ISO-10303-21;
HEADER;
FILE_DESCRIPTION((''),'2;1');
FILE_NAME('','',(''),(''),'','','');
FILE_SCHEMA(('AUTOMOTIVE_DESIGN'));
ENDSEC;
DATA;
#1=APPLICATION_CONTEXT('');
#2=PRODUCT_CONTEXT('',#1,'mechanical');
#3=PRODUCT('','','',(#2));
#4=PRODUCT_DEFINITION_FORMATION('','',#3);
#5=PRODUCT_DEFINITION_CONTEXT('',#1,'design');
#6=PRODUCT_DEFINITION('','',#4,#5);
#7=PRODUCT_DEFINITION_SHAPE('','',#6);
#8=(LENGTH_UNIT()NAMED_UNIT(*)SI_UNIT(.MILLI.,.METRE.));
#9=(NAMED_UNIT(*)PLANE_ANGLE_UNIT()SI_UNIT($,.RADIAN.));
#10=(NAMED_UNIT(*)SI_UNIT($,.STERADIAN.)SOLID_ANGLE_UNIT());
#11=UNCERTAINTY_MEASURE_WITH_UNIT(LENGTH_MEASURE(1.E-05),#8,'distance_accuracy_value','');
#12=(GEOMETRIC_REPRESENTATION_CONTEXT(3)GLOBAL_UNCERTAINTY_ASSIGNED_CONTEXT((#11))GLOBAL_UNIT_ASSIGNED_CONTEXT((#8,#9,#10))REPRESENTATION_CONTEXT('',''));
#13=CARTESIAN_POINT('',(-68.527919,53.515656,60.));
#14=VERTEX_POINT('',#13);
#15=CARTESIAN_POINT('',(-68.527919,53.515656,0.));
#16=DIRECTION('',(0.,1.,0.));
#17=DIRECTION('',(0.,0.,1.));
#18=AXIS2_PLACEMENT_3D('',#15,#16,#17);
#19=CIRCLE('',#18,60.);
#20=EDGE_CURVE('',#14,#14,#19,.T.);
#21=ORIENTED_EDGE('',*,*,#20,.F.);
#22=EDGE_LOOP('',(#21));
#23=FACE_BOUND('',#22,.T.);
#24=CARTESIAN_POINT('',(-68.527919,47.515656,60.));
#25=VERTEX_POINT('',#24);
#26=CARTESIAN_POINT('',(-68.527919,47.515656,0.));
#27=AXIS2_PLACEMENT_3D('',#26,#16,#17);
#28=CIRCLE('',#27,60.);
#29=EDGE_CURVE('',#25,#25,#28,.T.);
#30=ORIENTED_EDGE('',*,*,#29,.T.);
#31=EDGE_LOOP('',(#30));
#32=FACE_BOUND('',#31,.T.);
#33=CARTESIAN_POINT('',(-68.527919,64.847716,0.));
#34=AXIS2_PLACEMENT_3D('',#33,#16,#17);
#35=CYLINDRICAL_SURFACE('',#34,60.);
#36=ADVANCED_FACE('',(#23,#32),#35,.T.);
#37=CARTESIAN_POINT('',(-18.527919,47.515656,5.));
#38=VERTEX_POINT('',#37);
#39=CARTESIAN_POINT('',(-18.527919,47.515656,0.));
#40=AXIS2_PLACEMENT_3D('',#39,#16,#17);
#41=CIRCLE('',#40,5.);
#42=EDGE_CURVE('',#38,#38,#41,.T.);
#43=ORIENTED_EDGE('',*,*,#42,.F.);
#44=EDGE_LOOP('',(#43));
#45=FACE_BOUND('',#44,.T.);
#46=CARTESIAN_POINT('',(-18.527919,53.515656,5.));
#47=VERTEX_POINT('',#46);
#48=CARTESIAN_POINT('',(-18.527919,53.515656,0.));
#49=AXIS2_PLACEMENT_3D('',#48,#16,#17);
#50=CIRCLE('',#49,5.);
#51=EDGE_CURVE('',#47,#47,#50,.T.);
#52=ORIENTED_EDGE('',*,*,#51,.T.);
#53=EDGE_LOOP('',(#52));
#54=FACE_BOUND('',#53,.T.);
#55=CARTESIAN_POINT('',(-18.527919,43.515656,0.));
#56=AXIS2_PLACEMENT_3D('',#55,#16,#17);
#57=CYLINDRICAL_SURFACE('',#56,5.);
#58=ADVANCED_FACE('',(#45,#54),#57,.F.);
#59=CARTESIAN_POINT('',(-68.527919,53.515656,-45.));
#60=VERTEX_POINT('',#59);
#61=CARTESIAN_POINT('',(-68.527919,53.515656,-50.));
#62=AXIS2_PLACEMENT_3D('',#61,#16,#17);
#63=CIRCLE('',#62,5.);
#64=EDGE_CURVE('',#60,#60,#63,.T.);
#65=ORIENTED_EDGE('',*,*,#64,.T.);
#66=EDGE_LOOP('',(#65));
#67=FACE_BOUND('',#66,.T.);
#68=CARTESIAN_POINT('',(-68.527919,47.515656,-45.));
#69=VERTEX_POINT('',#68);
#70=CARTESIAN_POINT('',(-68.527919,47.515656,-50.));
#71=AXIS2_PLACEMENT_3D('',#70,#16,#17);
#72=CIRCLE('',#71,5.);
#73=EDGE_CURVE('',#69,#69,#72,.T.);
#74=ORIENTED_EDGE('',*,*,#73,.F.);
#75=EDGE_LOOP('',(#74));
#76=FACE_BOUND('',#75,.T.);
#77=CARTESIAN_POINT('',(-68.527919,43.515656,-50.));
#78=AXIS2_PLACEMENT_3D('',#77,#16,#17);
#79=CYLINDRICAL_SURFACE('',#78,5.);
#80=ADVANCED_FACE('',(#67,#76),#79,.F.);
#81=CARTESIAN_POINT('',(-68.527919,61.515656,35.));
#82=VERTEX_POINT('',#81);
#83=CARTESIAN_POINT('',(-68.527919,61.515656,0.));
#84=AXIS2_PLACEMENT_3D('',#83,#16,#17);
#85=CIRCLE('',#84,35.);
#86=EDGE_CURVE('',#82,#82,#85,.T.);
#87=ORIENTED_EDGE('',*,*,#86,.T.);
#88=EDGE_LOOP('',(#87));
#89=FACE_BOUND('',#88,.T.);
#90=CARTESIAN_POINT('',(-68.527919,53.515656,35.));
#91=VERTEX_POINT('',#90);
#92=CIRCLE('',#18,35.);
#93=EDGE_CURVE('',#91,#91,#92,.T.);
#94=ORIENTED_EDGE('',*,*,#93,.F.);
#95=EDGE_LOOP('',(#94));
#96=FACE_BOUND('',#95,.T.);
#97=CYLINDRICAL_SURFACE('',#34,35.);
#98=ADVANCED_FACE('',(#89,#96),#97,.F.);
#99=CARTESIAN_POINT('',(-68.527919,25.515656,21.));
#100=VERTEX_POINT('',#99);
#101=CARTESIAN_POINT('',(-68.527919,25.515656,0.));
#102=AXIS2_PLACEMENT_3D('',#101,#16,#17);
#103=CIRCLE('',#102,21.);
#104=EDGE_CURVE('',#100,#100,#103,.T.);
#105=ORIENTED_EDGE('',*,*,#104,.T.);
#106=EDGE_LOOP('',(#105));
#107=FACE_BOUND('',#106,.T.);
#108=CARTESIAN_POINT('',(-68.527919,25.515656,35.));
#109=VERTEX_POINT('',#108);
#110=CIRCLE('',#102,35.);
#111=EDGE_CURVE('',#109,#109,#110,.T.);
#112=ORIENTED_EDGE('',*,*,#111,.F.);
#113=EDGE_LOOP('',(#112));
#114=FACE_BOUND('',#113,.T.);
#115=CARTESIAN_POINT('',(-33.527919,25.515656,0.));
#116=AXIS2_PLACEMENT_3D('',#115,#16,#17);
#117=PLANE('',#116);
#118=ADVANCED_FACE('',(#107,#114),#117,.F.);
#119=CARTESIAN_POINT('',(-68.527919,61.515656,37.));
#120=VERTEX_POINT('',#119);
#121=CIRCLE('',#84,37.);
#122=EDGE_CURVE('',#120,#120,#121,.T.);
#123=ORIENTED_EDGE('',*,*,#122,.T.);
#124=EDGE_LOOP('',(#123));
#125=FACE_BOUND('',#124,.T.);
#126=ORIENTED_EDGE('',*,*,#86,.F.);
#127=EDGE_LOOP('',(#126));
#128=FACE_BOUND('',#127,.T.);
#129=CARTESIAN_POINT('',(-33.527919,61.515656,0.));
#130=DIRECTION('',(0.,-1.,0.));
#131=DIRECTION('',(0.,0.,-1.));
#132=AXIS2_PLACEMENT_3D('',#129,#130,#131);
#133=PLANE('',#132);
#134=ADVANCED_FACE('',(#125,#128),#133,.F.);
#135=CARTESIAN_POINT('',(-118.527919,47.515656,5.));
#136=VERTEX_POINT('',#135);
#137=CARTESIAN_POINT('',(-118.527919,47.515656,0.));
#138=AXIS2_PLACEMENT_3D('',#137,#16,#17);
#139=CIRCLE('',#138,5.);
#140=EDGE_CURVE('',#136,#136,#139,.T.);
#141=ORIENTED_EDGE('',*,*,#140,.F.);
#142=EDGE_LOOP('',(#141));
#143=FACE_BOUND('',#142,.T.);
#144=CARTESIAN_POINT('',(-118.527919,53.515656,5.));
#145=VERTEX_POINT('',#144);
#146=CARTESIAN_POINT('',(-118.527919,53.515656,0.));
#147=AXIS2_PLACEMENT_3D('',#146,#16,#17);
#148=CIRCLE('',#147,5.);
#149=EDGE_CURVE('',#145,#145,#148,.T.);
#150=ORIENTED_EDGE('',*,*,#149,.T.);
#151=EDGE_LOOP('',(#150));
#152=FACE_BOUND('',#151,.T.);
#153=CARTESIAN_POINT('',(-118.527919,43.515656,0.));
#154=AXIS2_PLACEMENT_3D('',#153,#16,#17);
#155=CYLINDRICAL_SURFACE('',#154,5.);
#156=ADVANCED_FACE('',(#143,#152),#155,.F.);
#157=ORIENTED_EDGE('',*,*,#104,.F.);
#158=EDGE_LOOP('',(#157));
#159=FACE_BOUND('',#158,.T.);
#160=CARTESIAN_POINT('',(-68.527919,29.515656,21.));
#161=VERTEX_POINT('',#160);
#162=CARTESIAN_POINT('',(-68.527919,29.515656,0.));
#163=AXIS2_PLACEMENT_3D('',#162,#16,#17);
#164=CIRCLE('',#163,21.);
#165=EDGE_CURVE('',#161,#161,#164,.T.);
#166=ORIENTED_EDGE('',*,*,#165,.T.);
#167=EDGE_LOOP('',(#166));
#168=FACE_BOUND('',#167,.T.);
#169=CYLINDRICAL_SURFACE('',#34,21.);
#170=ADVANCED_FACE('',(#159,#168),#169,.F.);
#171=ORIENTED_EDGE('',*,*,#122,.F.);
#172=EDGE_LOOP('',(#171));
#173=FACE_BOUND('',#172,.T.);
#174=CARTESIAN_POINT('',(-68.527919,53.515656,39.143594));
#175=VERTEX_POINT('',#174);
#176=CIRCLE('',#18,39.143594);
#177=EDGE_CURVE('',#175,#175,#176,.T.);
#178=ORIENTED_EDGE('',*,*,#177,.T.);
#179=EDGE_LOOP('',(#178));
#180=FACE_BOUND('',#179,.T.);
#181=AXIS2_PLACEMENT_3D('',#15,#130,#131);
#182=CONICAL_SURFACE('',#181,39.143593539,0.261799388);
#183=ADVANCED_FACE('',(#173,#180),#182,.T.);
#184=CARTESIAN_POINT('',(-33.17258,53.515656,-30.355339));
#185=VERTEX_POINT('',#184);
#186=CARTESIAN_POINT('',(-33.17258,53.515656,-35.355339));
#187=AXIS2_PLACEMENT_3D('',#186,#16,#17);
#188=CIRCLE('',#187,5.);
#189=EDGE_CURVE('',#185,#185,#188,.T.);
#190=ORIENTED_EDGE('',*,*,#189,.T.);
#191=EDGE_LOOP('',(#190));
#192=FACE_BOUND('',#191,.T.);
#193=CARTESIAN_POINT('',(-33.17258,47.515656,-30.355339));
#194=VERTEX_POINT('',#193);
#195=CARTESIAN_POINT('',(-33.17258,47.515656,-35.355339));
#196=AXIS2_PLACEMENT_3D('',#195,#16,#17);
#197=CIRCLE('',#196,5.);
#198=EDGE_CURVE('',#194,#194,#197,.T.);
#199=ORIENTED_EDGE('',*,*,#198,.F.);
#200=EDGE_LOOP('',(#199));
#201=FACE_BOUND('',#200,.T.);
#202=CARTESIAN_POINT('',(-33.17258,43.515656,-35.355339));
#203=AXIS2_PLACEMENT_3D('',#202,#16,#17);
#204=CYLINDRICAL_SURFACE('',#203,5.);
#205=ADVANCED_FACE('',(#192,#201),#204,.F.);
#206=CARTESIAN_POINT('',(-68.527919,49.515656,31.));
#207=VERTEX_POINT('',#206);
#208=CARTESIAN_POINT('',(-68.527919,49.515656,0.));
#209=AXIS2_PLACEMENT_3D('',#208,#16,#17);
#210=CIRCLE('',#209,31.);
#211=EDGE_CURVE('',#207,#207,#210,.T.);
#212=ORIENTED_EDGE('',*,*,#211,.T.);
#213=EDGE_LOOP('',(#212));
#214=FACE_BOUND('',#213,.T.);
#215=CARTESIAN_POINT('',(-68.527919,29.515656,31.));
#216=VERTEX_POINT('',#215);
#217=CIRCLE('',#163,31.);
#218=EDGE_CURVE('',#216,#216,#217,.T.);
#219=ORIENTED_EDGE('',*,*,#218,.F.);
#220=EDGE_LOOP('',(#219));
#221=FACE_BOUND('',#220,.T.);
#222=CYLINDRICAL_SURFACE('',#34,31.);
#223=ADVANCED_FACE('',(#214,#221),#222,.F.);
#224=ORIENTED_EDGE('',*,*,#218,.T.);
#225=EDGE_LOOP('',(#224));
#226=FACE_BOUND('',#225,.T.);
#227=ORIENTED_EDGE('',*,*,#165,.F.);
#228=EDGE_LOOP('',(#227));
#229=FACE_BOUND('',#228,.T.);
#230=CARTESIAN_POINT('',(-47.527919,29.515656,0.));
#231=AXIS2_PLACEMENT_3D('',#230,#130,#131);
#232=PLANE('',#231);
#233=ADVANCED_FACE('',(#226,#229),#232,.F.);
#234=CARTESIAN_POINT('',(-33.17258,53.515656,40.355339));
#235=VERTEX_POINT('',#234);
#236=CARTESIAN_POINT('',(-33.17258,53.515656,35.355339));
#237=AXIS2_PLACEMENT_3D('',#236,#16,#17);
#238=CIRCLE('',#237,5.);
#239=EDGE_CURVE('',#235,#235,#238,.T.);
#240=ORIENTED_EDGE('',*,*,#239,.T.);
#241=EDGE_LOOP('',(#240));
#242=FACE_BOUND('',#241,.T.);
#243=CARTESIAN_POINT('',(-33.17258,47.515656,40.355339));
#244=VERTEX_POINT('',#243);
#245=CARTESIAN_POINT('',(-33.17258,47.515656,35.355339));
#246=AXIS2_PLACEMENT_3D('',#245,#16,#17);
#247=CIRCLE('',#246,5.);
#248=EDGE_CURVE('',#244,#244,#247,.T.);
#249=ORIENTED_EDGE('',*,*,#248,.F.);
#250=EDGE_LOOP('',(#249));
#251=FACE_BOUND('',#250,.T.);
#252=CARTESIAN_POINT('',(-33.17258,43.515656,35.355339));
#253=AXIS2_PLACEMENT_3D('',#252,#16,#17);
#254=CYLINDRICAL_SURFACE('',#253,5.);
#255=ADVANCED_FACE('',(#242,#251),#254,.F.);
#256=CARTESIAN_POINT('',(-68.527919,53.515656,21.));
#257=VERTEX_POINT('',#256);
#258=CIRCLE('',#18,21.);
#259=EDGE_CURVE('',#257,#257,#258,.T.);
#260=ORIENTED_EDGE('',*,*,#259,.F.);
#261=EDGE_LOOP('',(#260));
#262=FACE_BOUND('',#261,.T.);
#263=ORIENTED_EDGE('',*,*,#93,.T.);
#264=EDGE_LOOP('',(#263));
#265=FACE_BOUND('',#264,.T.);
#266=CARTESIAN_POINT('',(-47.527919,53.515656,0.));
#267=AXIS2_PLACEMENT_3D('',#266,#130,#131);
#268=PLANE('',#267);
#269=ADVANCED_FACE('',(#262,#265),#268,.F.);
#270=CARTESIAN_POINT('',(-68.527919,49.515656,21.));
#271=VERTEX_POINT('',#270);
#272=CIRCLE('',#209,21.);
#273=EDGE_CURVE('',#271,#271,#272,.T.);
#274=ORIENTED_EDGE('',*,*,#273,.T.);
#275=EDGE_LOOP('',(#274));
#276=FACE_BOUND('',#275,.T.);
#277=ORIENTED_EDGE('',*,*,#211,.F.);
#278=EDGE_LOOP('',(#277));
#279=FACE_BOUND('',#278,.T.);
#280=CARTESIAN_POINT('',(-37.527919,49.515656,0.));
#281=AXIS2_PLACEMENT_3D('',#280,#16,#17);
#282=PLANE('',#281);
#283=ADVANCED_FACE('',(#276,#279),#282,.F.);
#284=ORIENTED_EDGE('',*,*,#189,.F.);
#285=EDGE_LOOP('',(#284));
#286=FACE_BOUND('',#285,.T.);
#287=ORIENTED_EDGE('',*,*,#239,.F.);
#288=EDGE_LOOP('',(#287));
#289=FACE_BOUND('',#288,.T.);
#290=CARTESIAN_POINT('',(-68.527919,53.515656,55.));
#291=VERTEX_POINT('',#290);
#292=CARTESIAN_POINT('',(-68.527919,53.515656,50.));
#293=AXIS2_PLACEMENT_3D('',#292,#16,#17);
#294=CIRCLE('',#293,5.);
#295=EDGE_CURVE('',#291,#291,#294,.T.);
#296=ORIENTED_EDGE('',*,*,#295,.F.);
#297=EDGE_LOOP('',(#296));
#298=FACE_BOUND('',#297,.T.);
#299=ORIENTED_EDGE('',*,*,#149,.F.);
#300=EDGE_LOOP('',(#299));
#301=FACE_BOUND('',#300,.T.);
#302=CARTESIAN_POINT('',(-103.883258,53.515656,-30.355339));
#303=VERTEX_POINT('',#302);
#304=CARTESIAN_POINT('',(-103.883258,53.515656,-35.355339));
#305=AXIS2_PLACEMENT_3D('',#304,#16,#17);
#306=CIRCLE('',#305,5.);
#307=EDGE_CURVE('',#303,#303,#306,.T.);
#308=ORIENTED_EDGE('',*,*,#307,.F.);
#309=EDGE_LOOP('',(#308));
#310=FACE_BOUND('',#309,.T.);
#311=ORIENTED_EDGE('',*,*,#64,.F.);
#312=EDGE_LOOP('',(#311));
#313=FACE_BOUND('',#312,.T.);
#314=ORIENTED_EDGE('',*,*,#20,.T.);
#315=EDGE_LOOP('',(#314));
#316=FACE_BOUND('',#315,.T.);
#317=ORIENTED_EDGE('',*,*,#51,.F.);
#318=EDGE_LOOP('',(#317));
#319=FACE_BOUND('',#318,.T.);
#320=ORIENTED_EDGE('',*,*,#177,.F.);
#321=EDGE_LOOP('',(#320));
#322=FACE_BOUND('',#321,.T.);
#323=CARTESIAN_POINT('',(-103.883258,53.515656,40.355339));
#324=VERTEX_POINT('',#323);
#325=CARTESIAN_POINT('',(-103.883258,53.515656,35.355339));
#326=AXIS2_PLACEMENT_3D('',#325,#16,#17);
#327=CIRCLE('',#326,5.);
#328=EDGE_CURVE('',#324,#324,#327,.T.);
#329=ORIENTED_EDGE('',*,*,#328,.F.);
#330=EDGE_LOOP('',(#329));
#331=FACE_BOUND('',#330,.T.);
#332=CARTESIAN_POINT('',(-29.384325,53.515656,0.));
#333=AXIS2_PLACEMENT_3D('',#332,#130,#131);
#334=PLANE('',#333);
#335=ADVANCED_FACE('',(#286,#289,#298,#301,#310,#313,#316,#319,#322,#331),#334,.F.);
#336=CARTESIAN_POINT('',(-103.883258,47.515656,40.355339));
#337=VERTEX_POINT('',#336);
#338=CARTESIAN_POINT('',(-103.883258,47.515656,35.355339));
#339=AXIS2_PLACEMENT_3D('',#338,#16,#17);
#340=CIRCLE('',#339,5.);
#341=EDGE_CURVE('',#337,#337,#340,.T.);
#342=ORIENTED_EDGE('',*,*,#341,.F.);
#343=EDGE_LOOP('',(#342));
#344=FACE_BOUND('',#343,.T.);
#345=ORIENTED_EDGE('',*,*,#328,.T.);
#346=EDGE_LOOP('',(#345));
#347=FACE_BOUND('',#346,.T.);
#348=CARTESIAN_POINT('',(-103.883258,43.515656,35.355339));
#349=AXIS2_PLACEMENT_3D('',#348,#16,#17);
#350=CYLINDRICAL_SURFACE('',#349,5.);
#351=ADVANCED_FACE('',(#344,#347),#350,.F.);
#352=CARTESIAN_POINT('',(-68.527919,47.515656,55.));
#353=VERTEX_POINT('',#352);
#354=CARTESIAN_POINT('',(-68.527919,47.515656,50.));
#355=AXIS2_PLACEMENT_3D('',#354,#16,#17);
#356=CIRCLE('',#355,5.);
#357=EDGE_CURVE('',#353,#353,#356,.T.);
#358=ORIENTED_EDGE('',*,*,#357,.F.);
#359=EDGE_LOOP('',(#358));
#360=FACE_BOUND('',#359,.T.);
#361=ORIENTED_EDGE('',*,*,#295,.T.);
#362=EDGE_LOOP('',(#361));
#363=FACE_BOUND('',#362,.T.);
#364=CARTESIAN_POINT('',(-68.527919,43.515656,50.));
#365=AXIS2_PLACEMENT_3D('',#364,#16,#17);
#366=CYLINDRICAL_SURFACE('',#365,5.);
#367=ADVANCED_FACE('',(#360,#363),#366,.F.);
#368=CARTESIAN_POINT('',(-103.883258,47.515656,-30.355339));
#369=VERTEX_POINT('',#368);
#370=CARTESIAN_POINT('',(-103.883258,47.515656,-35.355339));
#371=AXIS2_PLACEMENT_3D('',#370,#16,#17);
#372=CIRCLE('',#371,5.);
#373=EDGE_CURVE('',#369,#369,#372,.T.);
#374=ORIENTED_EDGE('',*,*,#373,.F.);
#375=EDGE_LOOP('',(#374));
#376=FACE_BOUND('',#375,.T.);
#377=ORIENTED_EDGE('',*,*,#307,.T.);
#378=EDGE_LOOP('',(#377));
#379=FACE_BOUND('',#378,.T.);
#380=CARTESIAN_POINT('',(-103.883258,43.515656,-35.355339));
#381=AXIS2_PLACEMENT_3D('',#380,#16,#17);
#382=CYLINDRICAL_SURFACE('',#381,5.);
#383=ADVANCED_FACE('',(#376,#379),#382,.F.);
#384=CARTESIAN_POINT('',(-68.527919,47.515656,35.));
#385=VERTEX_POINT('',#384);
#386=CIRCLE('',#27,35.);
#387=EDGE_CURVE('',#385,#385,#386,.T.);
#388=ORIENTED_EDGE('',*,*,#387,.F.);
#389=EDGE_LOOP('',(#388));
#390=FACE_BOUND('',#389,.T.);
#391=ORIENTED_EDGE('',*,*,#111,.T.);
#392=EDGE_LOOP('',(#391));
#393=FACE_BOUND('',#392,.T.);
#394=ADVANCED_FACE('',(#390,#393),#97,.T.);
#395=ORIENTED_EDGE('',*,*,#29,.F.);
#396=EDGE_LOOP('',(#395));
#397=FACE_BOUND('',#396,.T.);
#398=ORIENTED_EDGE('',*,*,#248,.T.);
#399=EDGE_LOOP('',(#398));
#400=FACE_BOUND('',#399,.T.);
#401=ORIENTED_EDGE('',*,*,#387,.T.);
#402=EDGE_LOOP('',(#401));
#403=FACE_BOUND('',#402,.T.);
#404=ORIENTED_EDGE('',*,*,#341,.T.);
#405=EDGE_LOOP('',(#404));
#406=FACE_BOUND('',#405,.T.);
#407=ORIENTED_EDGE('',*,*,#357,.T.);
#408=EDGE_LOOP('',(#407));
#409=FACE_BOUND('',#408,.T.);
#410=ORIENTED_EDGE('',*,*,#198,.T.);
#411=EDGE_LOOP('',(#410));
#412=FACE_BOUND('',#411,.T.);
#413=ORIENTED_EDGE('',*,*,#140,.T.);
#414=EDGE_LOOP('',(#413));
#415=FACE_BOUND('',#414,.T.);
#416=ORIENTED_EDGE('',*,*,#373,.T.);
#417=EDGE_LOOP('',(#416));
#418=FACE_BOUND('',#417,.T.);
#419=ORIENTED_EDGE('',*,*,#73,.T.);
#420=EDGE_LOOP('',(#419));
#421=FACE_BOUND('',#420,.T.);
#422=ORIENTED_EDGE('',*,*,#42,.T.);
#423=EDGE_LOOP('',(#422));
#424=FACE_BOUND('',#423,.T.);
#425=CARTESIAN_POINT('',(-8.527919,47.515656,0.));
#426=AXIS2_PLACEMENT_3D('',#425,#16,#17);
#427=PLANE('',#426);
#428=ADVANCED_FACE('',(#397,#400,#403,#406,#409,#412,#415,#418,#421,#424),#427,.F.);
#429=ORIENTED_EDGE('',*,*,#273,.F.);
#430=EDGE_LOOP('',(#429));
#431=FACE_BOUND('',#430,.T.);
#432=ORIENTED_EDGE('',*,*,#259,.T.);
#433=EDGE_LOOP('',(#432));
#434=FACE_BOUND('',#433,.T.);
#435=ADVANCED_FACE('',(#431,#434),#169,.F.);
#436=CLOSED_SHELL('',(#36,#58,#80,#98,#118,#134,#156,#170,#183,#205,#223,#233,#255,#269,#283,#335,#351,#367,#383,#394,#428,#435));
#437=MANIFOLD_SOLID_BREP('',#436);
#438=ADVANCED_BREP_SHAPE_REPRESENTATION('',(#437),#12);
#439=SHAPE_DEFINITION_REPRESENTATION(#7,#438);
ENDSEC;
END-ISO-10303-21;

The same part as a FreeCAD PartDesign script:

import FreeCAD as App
import Part
import Sketcher
Q = App.Units.Quantity

doc = App.newDocument("Part")
body = doc.addObject("PartDesign::Body", "Body")

# Sketch on XY plane
sketch1 = body.newObject("Sketcher::SketchObject", "Sketch")
sketch1.AttachmentSupport = (doc.getObject("XY_Plane"), [""])
sketch1.MapMode = "FlatFace"
sketch1.addGeometry([
    Part.LineSegment(App.Vector(-37.5, 29.5, 0), App.Vector(-47.5, 29.5, 0)),  # 0
    Part.LineSegment(App.Vector(-47.5, 29.5, 0), App.Vector(-47.5, 25.5, 0)),  # 1
    Part.LineSegment(App.Vector(-47.5, 25.5, 0), App.Vector(-33.5, 25.5, 0)),  # 2
    Part.LineSegment(App.Vector(-33.5, 25.5, 0), App.Vector(-33.5, 47.5, 0)),  # 3
    Part.LineSegment(App.Vector(-33.5, 47.5, 0), App.Vector(-8.5, 47.5, 0)),  # 4
    Part.LineSegment(App.Vector(-8.5, 47.5, 0), App.Vector(-8.5, 53.5, 0)),  # 5
    Part.LineSegment(App.Vector(-8.5, 53.5, 0), App.Vector(-29.4, 53.5, 0)),  # 6
    Part.LineSegment(App.Vector(-29.4, 53.5, 0), App.Vector(-31.5, 61.5, 0)),  # 7
    Part.LineSegment(App.Vector(-31.5, 61.5, 0), App.Vector(-33.5, 61.5, 0)),  # 8
    Part.LineSegment(App.Vector(-33.5, 61.5, 0), App.Vector(-33.5, 53.5, 0)),  # 9
    Part.LineSegment(App.Vector(-33.5, 53.5, 0), App.Vector(-47.5, 53.5, 0)),  # 10
    Part.LineSegment(App.Vector(-47.5, 53.5, 0), App.Vector(-47.5, 49.5, 0)),  # 11
    Part.LineSegment(App.Vector(-47.5, 49.5, 0), App.Vector(-37.5, 49.5, 0)),  # 12
    Part.LineSegment(App.Vector(-37.5, 49.5, 0), App.Vector(-37.5, 29.5, 0)),  # 13
], False)
sketch1.addGeometry(Part.LineSegment(App.Vector(-68.5, 61.5, 0), App.Vector(-68.5, 25.5, 0)), True)  # axis
sketch1.addConstraint([
    Sketcher.Constraint("Coincident", 0, 2, 1, 1),
    Sketcher.Constraint("Coincident", 1, 2, 2, 1),
    Sketcher.Constraint("Coincident", 2, 2, 3, 1),
    Sketcher.Constraint("Coincident", 3, 2, 4, 1),
    Sketcher.Constraint("Coincident", 4, 2, 5, 1),
    Sketcher.Constraint("Coincident", 5, 2, 6, 1),
    Sketcher.Constraint("Coincident", 6, 2, 7, 1),
    Sketcher.Constraint("Coincident", 7, 2, 8, 1),
    Sketcher.Constraint("Coincident", 8, 2, 9, 1),
    Sketcher.Constraint("Coincident", 9, 2, 10, 1),
    Sketcher.Constraint("Coincident", 10, 2, 11, 1),
    Sketcher.Constraint("Coincident", 11, 2, 12, 1),
    Sketcher.Constraint("Coincident", 12, 2, 13, 1),
    Sketcher.Constraint("Coincident", 13, 2, 0, 1),
    Sketcher.Constraint("Horizontal", 0),
    Sketcher.Constraint("Vertical", 1),
    Sketcher.Constraint("Horizontal", 2),
    Sketcher.Constraint("Vertical", 3),
    Sketcher.Constraint("Horizontal", 4),
    Sketcher.Constraint("Vertical", 5),
    Sketcher.Constraint("Horizontal", 6),
    Sketcher.Constraint("Horizontal", 8),
    Sketcher.Constraint("Vertical", 9),
    Sketcher.Constraint("Horizontal", 10),
    Sketcher.Constraint("Vertical", 11),
    Sketcher.Constraint("Horizontal", 12),
    Sketcher.Constraint("Vertical", 13),
    Sketcher.Constraint("Vertical", 14),
    Sketcher.Constraint("Horizontal", 6, 2, 9, 2),
    Sketcher.Constraint("Horizontal", 8, 2, 14, 1),
    Sketcher.Constraint("Horizontal", 2, 2, 14, 2),
    Sketcher.Constraint("Vertical", 3, 2, 8, 2),
    Sketcher.Constraint("Vertical", 1, 2, 10, 2),
    Sketcher.Constraint("Equal", 1, 11),
    Sketcher.Constraint("DistanceX", 0, 2, 0, 1, 10.0),
    Sketcher.Constraint("DistanceX", 2, 1, 2, 2, 14.0),
    Sketcher.Constraint("DistanceX", 4, 1, 4, 2, 25.0),
    Sketcher.Constraint("DistanceX", 8, 2, 8, 1, 2.0),
    Sketcher.Constraint("DistanceY", 1, 2, 1, 1, 4.0),
    Sketcher.Constraint("DistanceY", 3, 1, 3, 2, 22.0),
    Sketcher.Constraint("DistanceY", 5, 1, 5, 2, 6.0),
    Sketcher.Constraint("DistanceY", 9, 2, 9, 1, 8.0),
    Sketcher.Constraint("Angle", 7, Q("105 deg")),
    Sketcher.Constraint("DistanceX", 14, 1, 10, 2, 21.0),
    Sketcher.Constraint("DistanceX", 0, 2, -1, 1, 47.527919),
    Sketcher.Constraint("DistanceY", -1, 1, 0, 2, 29.515656),
])
revolution = body.newObject("PartDesign::Revolution", "Revolution")
revolution.Profile = sketch1
revolution.ReferenceAxis = (sketch1, ["Axis0"])
revolution.Angle = 360

# Sketch on XZ plane
sketch2 = body.newObject("Sketcher::SketchObject", "Sketch001")
sketch2.AttachmentSupport = (doc.getObject("XZ_Plane"), [""])
sketch2.MapMode = "FlatFace"
sketch2.AttachmentOffset = App.Placement(App.Vector(0, 0, -53.515656), App.Rotation())
sketch2.addGeometry([
    Part.Circle(App.Vector(-119, 0, 0), App.Vector(0, 0, 1), 5),  # 0
    Part.Circle(App.Vector(-104, -35, 0), App.Vector(0, 0, 1), 5),  # 1
    Part.Circle(App.Vector(-69, -50, 0), App.Vector(0, 0, 1), 5),  # 2
    Part.Circle(App.Vector(-33, -35, 0), App.Vector(0, 0, 1), 5),  # 3
    Part.Circle(App.Vector(-19, 0, 0), App.Vector(0, 0, 1), 5),  # 4
    Part.Circle(App.Vector(-33, 35, 0), App.Vector(0, 0, 1), 5),  # 5
    Part.Circle(App.Vector(-69, 50, 0), App.Vector(0, 0, 1), 5),  # 6
    Part.Circle(App.Vector(-104, 35, 0), App.Vector(0, 0, 1), 5),  # 7
], False)
sketch2.addConstraint([
    Sketcher.Constraint("Equal", 0, 1),
    Sketcher.Constraint("Equal", 1, 2),
    Sketcher.Constraint("Equal", 2, 3),
    Sketcher.Constraint("Equal", 3, 4),
    Sketcher.Constraint("Equal", 4, 5),
    Sketcher.Constraint("Equal", 5, 6),
    Sketcher.Constraint("Equal", 6, 7),
    Sketcher.Constraint("Symmetric", 3, 3, 5, 3, -1),
    Sketcher.Constraint("Symmetric", 2, 3, 6, 3, -1),
    Sketcher.Constraint("Symmetric", 1, 3, 7, 3, -1),
    Sketcher.Constraint("PointOnObject", 0, 3, -1),
    Sketcher.Constraint("PointOnObject", 4, 3, -1),
    Sketcher.Constraint("Horizontal", 1, 3, 3, 3),
    Sketcher.Constraint("Diameter", 0, 10.0),
    Sketcher.Constraint("DistanceY", 2, 3, -1, 1, 50.0),
    Sketcher.Constraint("DistanceX", 0, 3, 2, 3, 50.0),
    Sketcher.Constraint("DistanceX", 2, 3, 4, 3, 50.0),
    Sketcher.Constraint("DistanceX", 0, 3, -1, 1, 118.527919),
    Sketcher.Constraint("DistanceY", 1, 3, -1, 1, 35.355339),
    Sketcher.Constraint("DistanceX", 3, 3, -1, 1, 33.17258),
    Sketcher.Constraint("DistanceX", 0, 3, 1, 3, 14.644661),
])
pocket1 = body.newObject("PartDesign::Pocket", "Pocket")
pocket1.Profile = sketch2
pocket1.Length = 10
pocket1.Reversed = True

doc.recompute()
